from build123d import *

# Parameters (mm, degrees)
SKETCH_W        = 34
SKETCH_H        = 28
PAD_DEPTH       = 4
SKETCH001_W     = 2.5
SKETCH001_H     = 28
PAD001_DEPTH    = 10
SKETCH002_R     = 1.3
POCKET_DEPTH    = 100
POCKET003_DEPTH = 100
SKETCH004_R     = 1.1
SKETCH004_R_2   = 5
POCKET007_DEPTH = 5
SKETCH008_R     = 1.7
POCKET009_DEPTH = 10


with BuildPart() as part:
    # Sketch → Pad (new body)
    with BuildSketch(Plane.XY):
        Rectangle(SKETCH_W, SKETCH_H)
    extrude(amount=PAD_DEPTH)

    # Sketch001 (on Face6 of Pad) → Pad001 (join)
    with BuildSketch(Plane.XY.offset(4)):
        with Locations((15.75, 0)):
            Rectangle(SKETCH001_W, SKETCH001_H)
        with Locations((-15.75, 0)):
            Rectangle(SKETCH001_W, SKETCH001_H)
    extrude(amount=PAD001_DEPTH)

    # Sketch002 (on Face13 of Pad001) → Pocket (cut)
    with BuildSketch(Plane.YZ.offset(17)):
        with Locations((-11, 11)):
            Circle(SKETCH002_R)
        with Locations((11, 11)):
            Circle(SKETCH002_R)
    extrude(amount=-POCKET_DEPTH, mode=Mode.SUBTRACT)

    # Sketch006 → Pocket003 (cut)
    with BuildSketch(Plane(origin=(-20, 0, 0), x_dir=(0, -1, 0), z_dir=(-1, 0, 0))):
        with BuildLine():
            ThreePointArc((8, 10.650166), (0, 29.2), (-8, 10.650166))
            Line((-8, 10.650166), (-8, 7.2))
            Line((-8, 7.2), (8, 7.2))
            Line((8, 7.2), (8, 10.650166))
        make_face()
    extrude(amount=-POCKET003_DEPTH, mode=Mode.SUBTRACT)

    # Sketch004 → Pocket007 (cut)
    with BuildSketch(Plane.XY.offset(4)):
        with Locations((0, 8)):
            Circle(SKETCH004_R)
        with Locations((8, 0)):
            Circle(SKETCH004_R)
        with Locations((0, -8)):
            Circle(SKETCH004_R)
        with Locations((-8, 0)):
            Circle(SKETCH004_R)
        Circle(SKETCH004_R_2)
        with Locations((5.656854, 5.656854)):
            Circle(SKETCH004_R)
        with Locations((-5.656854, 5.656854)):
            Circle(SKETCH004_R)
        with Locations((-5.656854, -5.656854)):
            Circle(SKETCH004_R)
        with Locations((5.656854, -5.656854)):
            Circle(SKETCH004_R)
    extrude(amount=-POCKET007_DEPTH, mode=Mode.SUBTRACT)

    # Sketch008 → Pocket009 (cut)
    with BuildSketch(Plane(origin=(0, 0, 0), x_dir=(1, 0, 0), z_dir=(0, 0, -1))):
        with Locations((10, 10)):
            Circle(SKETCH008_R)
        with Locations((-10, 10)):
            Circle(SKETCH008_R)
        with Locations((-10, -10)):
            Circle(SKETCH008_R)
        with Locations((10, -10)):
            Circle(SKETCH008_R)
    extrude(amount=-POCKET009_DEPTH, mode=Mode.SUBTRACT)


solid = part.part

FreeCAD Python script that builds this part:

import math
import FreeCAD as App
import Part
import Sketcher

V = App.Vector

doc = App.newDocument("Part")
body = doc.addObject("PartDesign::Body", "Body")

# Sketch on XY plane
sketch1 = doc.addObject("Sketcher::SketchObject", "Sketch")
body.addObject(sketch1)
sketch1.AttachmentSupport = (doc.XY_Plane, [""])
sketch1.MapMode = "FlatFace"
sketch1.addGeometry([
    Part.LineSegment(V(-17, 14, 0), V(-17, -14, 0)),
    Part.LineSegment(V(-17, -14, 0), V(17, -14, 0)),
    Part.LineSegment(V(17, -14, 0), V(17, 14, 0)),
    Part.LineSegment(V(17, 14, 0), V(-17, 14, 0)),
], False)
sketch1.addConstraint([
    Sketcher.Constraint("Coincident", 0, 2, 1, 1),
    Sketcher.Constraint("Coincident", 1, 2, 2, 1),
    Sketcher.Constraint("Coincident", 2, 2, 3, 1),
    Sketcher.Constraint("Coincident", 3, 2, 0, 1),
    Sketcher.Constraint("Vertical", 0),
    Sketcher.Constraint("Horizontal", 1),
    Sketcher.Constraint("Vertical", 2),
    Sketcher.Constraint("Horizontal", 3),
    Sketcher.Constraint("Symmetric", 0, 2, 2, 2, -1, 1),
    Sketcher.Constraint("DistanceX", 1, 1, 1, 2, 34.0),
    Sketcher.Constraint("DistanceY", 0, 2, 0, 1, 28.0),
])
pad1 = doc.addObject("PartDesign::Pad", "Pad")
body.addObject(pad1)
pad1.Profile = sketch1
pad1.Length = 4

# Sketch on XY plane
sketch2 = doc.addObject("Sketcher::SketchObject", "Sketch001")
body.addObject(sketch2)
sketch2.AttachmentSupport = (doc.XY_Plane, [""])
sketch2.MapMode = "FlatFace"
sketch2.AttachmentOffset = App.Placement(V(0, 0, 4), App.Rotation())
sketch2.addGeometry([
    Part.LineSegment(V(14.5, 14, 0), V(14.5, -14, 0)),  # 0
    Part.LineSegment(V(14.5, -14, 0), V(17, -14, 0)),  # 1
    Part.LineSegment(V(17, -14, 0), V(17, 14, 0)),  # 2
    Part.LineSegment(V(17, 14, 0), V(14.5, 14, 0)),  # 3
    Part.LineSegment(V(-17, 14, 0), V(-17, -14, 0)),  # 4
    Part.LineSegment(V(-17, -14, 0), V(-14.5, -14, 0)),  # 5
    Part.LineSegment(V(-14.5, -14, 0), V(-14.5, 14, 0)),  # 6
    Part.LineSegment(V(-14.5, 14, 0), V(-17, 14, 0)),  # 7
], False)
sketch2.addConstraint([
    Sketcher.Constraint("Coincident", 0, 2, 1, 1),
    Sketcher.Constraint("Coincident", 1, 2, 2, 1),
    Sketcher.Constraint("Coincident", 2, 2, 3, 1),
    Sketcher.Constraint("Coincident", 3, 2, 0, 1),
    Sketcher.Constraint("Coincident", 4, 2, 5, 1),
    Sketcher.Constraint("Coincident", 5, 2, 6, 1),
    Sketcher.Constraint("Coincident", 6, 2, 7, 1),
    Sketcher.Constraint("Coincident", 7, 2, 4, 1),
    Sketcher.Constraint("Vertical", 0),
    Sketcher.Constraint("Horizontal", 1),
    Sketcher.Constraint("Vertical", 2),
    Sketcher.Constraint("Horizontal", 3),
    Sketcher.Constraint("Vertical", 4),
    Sketcher.Constraint("Horizontal", 5),
    Sketcher.Constraint("Vertical", 6),
    Sketcher.Constraint("Horizontal", 7),
    Sketcher.Constraint("Symmetric", 2, 2, 4, 2, -1, 1),
    Sketcher.Constraint("Symmetric", 0, 2, 6, 2, -1, 1),
    Sketcher.Constraint("Horizontal", 1, 2, 4, 2),
    Sketcher.Constraint("DistanceY", 0, 2, 0, 1, 28.0),
    Sketcher.Constraint("DistanceX", 1, 1, 1, 2, 2.5),
    Sketcher.Constraint("DistanceX", -1, 1, 1, 2, 17.0),
])
pad2 = doc.addObject("PartDesign::Pad", "Pad001")
body.addObject(pad2)
pad2.Profile = sketch2
pad2.Length = 10

# Sketch on YZ plane
sketch3 = doc.addObject("Sketcher::SketchObject", "Sketch002")
body.addObject(sketch3)
sketch3.AttachmentSupport = (doc.YZ_Plane, [""])
sketch3.MapMode = "FlatFace"
sketch3.AttachmentOffset = App.Placement(V(0, 0, 17), App.Rotation())
sketch3.addGeometry([
    Part.Circle(V(-11, 11, 0), V(0, 0, 1), 1.3),
    Part.Circle(V(11, 11, 0), V(0, 0, 1), 1.3),
], False)
sketch3.addConstraint([
    Sketcher.Constraint("Equal", 0, 1),
    Sketcher.Constraint("Symmetric", 0, 3, 1, 3, -2),
    Sketcher.Constraint("Diameter", 0, 2.6),
    Sketcher.Constraint("DistanceX", 0, 3, -1, 1, 11.0),
    Sketcher.Constraint("DistanceY", -1, 1, 0, 3, 11.0),
])
pocket1 = doc.addObject("PartDesign::Pocket", "Pocket")
body.addObject(pocket1)
pocket1.Profile = sketch3
pocket1.Length = 100

# Sketch on YZ plane
sketch4 = doc.addObject("Sketcher::SketchObject", "Sketch003")
body.addObject(sketch4)
sketch4.AttachmentSupport = (doc.YZ_Plane, [""])
sketch4.MapMode = "FlatFace"
sketch4.AttachmentOffset = App.Placement(V(0, 0, -20), App.Rotation())
sketch4.addGeometry([
    Part.ArcOfCircle(Part.Circle(V(0, 18.2, 0), V(0, 0, 1), 11), math.radians(-43.341757), math.radians(223.341757)),
    Part.LineSegment(V(8, 10.650166, 0), V(8, 7.2, 0)),
    Part.LineSegment(V(8, 7.2, 0), V(-8, 7.2, 0)),
    Part.LineSegment(V(-8, 7.2, 0), V(-8, 10.650166, 0)),
], False)
sketch4.addConstraint([
    Sketcher.Constraint("Coincident", 0, 1, 1, 1),
    Sketcher.Constraint("Coincident", 1, 2, 2, 1),
    Sketcher.Constraint("Coincident", 2, 2, 3, 1),
    Sketcher.Constraint("Coincident", 3, 2, 0, 2),
    Sketcher.Constraint("Vertical", 1),
    Sketcher.Constraint("Horizontal", 2),
    Sketcher.Constraint("Vertical", 3),
    Sketcher.Constraint("Symmetric", 0, 1, 3, 2, -2),
    Sketcher.Constraint("Radius", 0, 11.0),
    Sketcher.Constraint("DistanceX", 2, 2, 2, 1, 16.0),
    Sketcher.Constraint("DistanceY", 1, 2, 0, 3, 11.0),
    Sketcher.Constraint("DistanceY", -1, 1, 0, 3, 18.2),
])
pocket2 = doc.addObject("PartDesign::Pocket", "Pocket001")
body.addObject(pocket2)
pocket2.Profile = sketch4
pocket2.Length = 100
pocket2.Reversed = True

# Sketch on XY plane
sketch5 = doc.addObject("Sketcher::SketchObject", "Sketch004")
body.addObject(sketch5)
sketch5.AttachmentSupport = (doc.XY_Plane, [""])
sketch5.MapMode = "FlatFace"
sketch5.AttachmentOffset = App.Placement(V(0, 0, 4), App.Rotation())
sketch5.addGeometry([
    Part.Circle(V(0, 8, 0), V(0, 0, 1), 1.1),  # 0
    Part.Circle(V(8, 0, 0), V(0, 0, 1), 1.1),  # 1
    Part.Circle(V(0, -8, 0), V(0, 0, 1), 1.1),  # 2
    Part.Circle(V(-8, 0, 0), V(0, 0, 1), 1.1),  # 3
    Part.Circle(V(0, 0, 0), V(0, 0, 1), 5),  # 4
    Part.Circle(V(5.656854, 5.656854, 0), V(0, 0, 1), 1.1),  # 5
    Part.Circle(V(-5.656854, 5.656854, 0), V(0, 0, 1), 1.1),  # 6
    Part.Circle(V(-5.656854, -5.656854, 0), V(0, 0, 1), 1.1),  # 7
    Part.Circle(V(5.656854, -5.656854, 0), V(0, 0, 1), 1.1),  # 8
], False)
sketch5.addConstraint([
    Sketcher.Constraint("Coincident", 4, 3, -1, 1),
    Sketcher.Constraint("Equal", 0, 1),
    Sketcher.Constraint("Equal", 1, 2),
    Sketcher.Constraint("Equal", 2, 3),
    Sketcher.Constraint("Equal", 3, 5),
    Sketcher.Constraint("Equal", 5, 6),
    Sketcher.Constraint("Equal", 6, 7),
    Sketcher.Constraint("Equal", 7, 8),
    Sketcher.Constraint("Symmetric", 0, 3, 2, 3, -1, 1),
    Sketcher.Constraint("Symmetric", 1, 3, 3, 3, -1, 1),
    Sketcher.Constraint("Symmetric", 5, 3, 7, 3, -1, 1),
    Sketcher.Constraint("Symmetric", 6, 3, 8, 3, -1, 1),
    Sketcher.Constraint("Symmetric", 5, 3, 6, 3, -2),
    Sketcher.Constraint("PointOnObject", 0, 3, -2),
    Sketcher.Constraint("PointOnObject", 1, 3, -1),
    Sketcher.Constraint("Diameter", 4, 10.0),
    Sketcher.Constraint("Diameter", 0, 2.2),
    Sketcher.Constraint("DistanceY", -1, 1, 0, 3, 8.0),
    Sketcher.Constraint("DistanceX", -1, 1, 1, 3, 8.0),
    Sketcher.Constraint("DistanceX", -1, 1, 5, 3, 5.656854),
    Sketcher.Constraint("DistanceY", -1, 1, 5, 3, 5.656854),
])
pocket3 = doc.addObject("PartDesign::Pocket", "Pocket002")
body.addObject(pocket3)
pocket3.Profile = sketch5
pocket3.Length = 5

# Sketch on XY plane
sketch6 = doc.addObject("Sketcher::SketchObject", "Sketch005")
body.addObject(sketch6)
sketch6.AttachmentSupport = (doc.XY_Plane, [""])
sketch6.MapMode = "FlatFace"
sketch6.addGeometry([
    Part.Circle(V(10, -10, 0), V(0, 0, 1), 1.7),
    Part.Circle(V(-10, -10, 0), V(0, 0, 1), 1.7),
    Part.Circle(V(-10, 10, 0), V(0, 0, 1), 1.7),
    Part.Circle(V(10, 10, 0), V(0, 0, 1), 1.7),
], False)
sketch6.addConstraint([
    Sketcher.Constraint("Equal", 0, 1),
    Sketcher.Constraint("Equal", 1, 2),
    Sketcher.Constraint("Equal", 2, 3),
    Sketcher.Constraint("Symmetric", 0, 3, 2, 3, -1, 1),
    Sketcher.Constraint("Symmetric", 1, 3, 3, 3, -1, 1),
    Sketcher.Constraint("Symmetric", 0, 3, 1, 3, -2),
    Sketcher.Constraint("Diameter", 0, 3.4),
    Sketcher.Constraint("DistanceX", -1, 1, 0, 3, 10.0),
    Sketcher.Constraint("DistanceY", 0, 3, -1, 1, 10.0),
])
pocket4 = doc.addObject("PartDesign::Pocket", "Pocket003")
body.addObject(pocket4)
pocket4.Profile = sketch6
pocket4.Length = 10
pocket4.Reversed = True

doc.recompute()
